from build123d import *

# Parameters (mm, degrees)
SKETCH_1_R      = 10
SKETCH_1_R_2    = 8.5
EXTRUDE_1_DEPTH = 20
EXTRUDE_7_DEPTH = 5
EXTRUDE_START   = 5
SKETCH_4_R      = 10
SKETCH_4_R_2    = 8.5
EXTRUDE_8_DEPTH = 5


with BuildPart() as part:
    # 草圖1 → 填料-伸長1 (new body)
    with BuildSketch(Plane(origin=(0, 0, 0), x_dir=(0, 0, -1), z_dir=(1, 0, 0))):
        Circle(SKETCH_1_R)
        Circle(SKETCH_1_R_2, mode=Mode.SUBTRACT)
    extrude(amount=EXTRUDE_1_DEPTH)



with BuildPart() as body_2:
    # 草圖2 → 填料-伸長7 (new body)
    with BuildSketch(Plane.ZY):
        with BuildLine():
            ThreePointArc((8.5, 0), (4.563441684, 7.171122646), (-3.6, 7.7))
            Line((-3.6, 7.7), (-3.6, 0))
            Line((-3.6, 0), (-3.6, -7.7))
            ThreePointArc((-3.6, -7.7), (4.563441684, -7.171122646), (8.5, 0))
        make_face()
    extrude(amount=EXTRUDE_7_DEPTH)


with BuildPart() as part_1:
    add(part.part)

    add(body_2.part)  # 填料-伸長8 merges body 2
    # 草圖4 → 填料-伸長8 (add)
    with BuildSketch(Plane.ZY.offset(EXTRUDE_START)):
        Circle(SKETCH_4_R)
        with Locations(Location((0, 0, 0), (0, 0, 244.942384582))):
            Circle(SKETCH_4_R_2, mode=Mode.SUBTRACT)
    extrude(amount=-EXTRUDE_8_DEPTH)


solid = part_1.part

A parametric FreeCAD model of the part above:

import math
import FreeCAD as App
import Part
import Sketcher

V = App.Vector
Q = App.Units.Quantity

doc = App.newDocument("Part")
params = doc.addObject("Spreadsheet::Sheet", "Params")
for row, (alias, value) in enumerate([
    ("sketch1_diameter", "20 mm"),
    ("sketch1_diameter2", "17 mm"),
    ("pad1_length", "20 mm"),
    ("sketch2_radius", "8.5 mm"),
    ("sketch2_width", "15.4 mm"),
    ("pad2_length", "5 mm"),
    ("sketch3_diameter", "20 mm"),
    ("sketch3_diameter2", "17 mm"),
    ("pad3_length", "5 mm"),
], start=1):
    params.set(f"A{row}", alias)
    params.set(f"B{row}", "=" + value)
    params.setAlias(f"B{row}", alias)

body = doc.addObject("PartDesign::Body", "Body")

sketch1 = body.newObject("Sketcher::SketchObject", "Sketch")
sketch1.AttachmentSupport = (doc.getObject("YZ_Plane"), [""])
sketch1.MapMode = "FlatFace"
sketch1.addGeometry(Part.Circle(V(0, 0, 0), V(0, 0, 1), 10), False)
sketch1.addGeometry(Part.Circle(V(0, 0, 0), V(0, 0, 1), 8), False)
sketch1.addConstraint(Sketcher.Constraint("Coincident", 0, 3, -1, 1))
sketch1.addConstraint(Sketcher.Constraint("Coincident", 1, 3, -1, 1))
sketch1.addConstraint(Sketcher.Constraint("Diameter", 0, Q("20 mm")))
sketch1.addConstraint(Sketcher.Constraint("Diameter", 1, Q("17 mm")))
sketch1.setExpression("Constraints[2]", "Params.sketch1_diameter")
sketch1.setExpression("Constraints[3]", "Params.sketch1_diameter2")
pad1 = body.newObject("PartDesign::Pad", "Pad")
pad1.Profile = sketch1
pad1.setExpression("Length", "Params.pad1_length")
body2 = doc.addObject("PartDesign::Body", "Body001")

sketch2 = body2.newObject("Sketcher::SketchObject", "Sketch001")
sketch2.AttachmentSupport = (doc.getObject("YZ_Plane001"), [""])
sketch2.MapMode = "FlatFace"
sketch2.addGeometry(Part.ArcOfCircle(Part.Circle(V(0, 0, 0), V(0, 0, 1), 8), math.radians(-25), math.radians(90)), False)
sketch2.addGeometry(Part.LineSegment(V(8, -4, 0), V(-8, -4, 0)), False)
sketch2.addGeometry(Part.ArcOfCircle(Part.Circle(V(0, 0, 0), V(0, 0, 1), 8), math.radians(90), math.radians(205)), False)
sketch2.addConstraint(Sketcher.Constraint("Coincident", 0, 1, 1, 1))
sketch2.addConstraint(Sketcher.Constraint("Coincident", 1, 2, 2, 2))
sketch2.addConstraint(Sketcher.Constraint("Tangent", 2, 1, 0, 2))
sketch2.addConstraint(Sketcher.Constraint("Horizontal", 1))
sketch2.addConstraint(Sketcher.Constraint("Coincident", 0, 3, -1, 1))
sketch2.addConstraint(Sketcher.Constraint("Equal", 0, 2))
sketch2.addConstraint(Sketcher.Constraint("PointOnObject", 2, 1, -2))
sketch2.addConstraint(Sketcher.Constraint("Radius", 0, Q("8.5 mm")))
sketch2.addConstraint(Sketcher.Constraint("DistanceX", 1, 2, 1, 1, Q("15.4 mm")))
sketch2.setExpression("Constraints[7]", "Params.sketch2_radius")
sketch2.setExpression("Constraints[8]", "Params.sketch2_width")
pad2 = body2.newObject("PartDesign::Pad", "Pad001")
pad2.Profile = sketch2
pad2.setExpression("Length", "Params.pad2_length")
pad2.Reversed = True
body.AllowCompound = True
doc.recompute()

boolean = body.newObject("PartDesign::Boolean", "Boolean")
boolean.Type = "Fuse"
boolean.addObjects([body2])

sketch3 = body.newObject("Sketcher::SketchObject", "Sketch002")
sketch3.AttachmentSupport = (doc.getObject("YZ_Plane"), [""])
sketch3.MapMode = "FlatFace"
sketch3.AttachmentOffset = App.Placement(V(0, 0, -5), App.Rotation())
sketch3.addGeometry(Part.Circle(V(0, 0, 0), V(0, 0, 1), 10), False)
sketch3.addGeometry(Part.Circle(V(0, 0, 0), V(0, 0, 1), 8), False)
sketch3.addConstraint(Sketcher.Constraint("Coincident", 0, 3, -1, 1))
sketch3.addConstraint(Sketcher.Constraint("Coincident", 1, 3, -1, 1))
sketch3.addConstraint(Sketcher.Constraint("Diameter", 0, Q("20 mm")))
sketch3.addConstraint(Sketcher.Constraint("Diameter", 1, Q("17 mm")))
sketch3.setExpression("Constraints[2]", "Params.sketch3_diameter")
sketch3.setExpression("Constraints[3]", "Params.sketch3_diameter2")
pad3 = body.newObject("PartDesign::Pad", "Pad002")
pad3.Profile = sketch3
pad3.setExpression("Length", "Params.pad3_length")

doc.recompute()
